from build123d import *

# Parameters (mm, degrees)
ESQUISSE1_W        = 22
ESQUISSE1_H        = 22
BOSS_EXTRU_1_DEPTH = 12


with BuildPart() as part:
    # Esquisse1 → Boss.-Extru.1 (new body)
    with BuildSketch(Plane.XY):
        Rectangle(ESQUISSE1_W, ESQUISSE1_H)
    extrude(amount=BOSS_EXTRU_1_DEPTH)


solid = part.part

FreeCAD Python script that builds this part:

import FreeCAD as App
import Part
import Sketcher
from FreeCAD import Vector
Q = App.Units.Quantity

doc = App.newDocument("Part")
body = doc.addObject("PartDesign::Body", "Body")

sketch1 = body.newObject("Sketcher::SketchObject", "Sketch")
sketch1.AttachmentSupport = (doc.getObject("XY_Plane"), [""])
sketch1.MapMode = "FlatFace"
sketch1.addGeometry([
    Part.LineSegment(Vector(-11, 11, 0), Vector(-11, -11, 0)),
    Part.LineSegment(Vector(-11, -11, 0), Vector(11, -11, 0)),
    Part.LineSegment(Vector(11, -11, 0), Vector(11, 11, 0)),
    Part.LineSegment(Vector(11, 11, 0), Vector(-11, 11, 0)),
], False)
sketch1.addConstraint([
    Sketcher.Constraint("Coincident", 0, 2, 1, 1),
    Sketcher.Constraint("Coincident", 1, 2, 2, 1),
    Sketcher.Constraint("Coincident", 2, 2, 3, 1),
    Sketcher.Constraint("Coincident", 3, 2, 0, 1),
    Sketcher.Constraint("Vertical", 0),
    Sketcher.Constraint("Horizontal", 1),
    Sketcher.Constraint("Vertical", 2),
    Sketcher.Constraint("Horizontal", 3),
    Sketcher.Constraint("Symmetric", 0, 2, 2, 2, -1, 1),
    Sketcher.Constraint("Equal", 3, 0),
    Sketcher.Constraint("DistanceX", 1, 1, 1, 2, Q("22 mm")),
])
pad1 = body.newObject("PartDesign::Pad", "Pad")
pad1.Profile = sketch1
pad1.Length = 12

doc.recompute()
